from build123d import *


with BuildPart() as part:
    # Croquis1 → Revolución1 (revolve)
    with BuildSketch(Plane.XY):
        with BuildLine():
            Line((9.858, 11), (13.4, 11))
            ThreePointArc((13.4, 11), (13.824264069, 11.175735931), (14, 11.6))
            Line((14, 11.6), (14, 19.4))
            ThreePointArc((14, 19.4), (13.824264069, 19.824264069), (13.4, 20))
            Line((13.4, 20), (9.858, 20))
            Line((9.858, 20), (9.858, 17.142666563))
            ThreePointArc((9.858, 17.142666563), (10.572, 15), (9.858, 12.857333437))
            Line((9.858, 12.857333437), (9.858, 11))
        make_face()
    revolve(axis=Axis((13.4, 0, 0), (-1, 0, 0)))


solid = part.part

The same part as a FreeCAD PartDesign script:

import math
import FreeCAD as App
import Part
import Sketcher

doc = App.newDocument("Part")
body = doc.addObject("PartDesign::Body", "Body")

# Sketch on XY plane
sketch1 = doc.addObject("Sketcher::SketchObject", "Sketch")
body.addObject(sketch1)
sketch1.AttachmentSupport = (doc.XY_Plane, [""])
sketch1.MapMode = "FlatFace"
sketch1.addGeometry([
    Part.LineSegment(App.Vector(9.858, 11, 0), App.Vector(13.4, 11, 0)),  # 0
    Part.ArcOfCircle(Part.Circle(App.Vector(13.4, 11.6, 0), App.Vector(0, 0, 1), 0.6), math.radians(-90), math.radians(0)),  # 1
    Part.LineSegment(App.Vector(14, 11.6, 0), App.Vector(14, 19.4, 0)),  # 2
    Part.ArcOfCircle(Part.Circle(App.Vector(13.4, 19.4, 0), App.Vector(0, 0, 1), 0.6), math.radians(0), math.radians(90)),  # 3
    Part.LineSegment(App.Vector(13.4, 20, 0), App.Vector(9.858, 20, 0)),  # 4
    Part.LineSegment(App.Vector(9.858, 20, 0), App.Vector(9.858, 17.142667, 0)),  # 5
    Part.ArcOfCircle(Part.Circle(App.Vector(7, 15, 0), App.Vector(0, 0, 1), 3.572), math.radians(-36.859203), math.radians(36.859203)),  # 6
    Part.LineSegment(App.Vector(9.858, 12.857333, 0), App.Vector(9.858, 11, 0)),  # 7
], False)
sketch1.addConstraint([
    Sketcher.Constraint("Tangent", 0, 2, 1, 1),
    Sketcher.Constraint("Tangent", 1, 2, 2, 1),
    Sketcher.Constraint("Tangent", 2, 2, 3, 1),
    Sketcher.Constraint("Tangent", 3, 2, 4, 1),
    Sketcher.Constraint("Coincident", 4, 2, 5, 1),
    Sketcher.Constraint("Coincident", 5, 2, 6, 2),
    Sketcher.Constraint("Coincident", 6, 1, 7, 1),
    Sketcher.Constraint("Coincident", 7, 2, 0, 1),
    Sketcher.Constraint("Horizontal", 0),
    Sketcher.Constraint("Vertical", 2),
    Sketcher.Constraint("Horizontal", 4),
    Sketcher.Constraint("Vertical", 5),
    Sketcher.Constraint("Vertical", 7),
    Sketcher.Constraint("Equal", 1, 3),
    Sketcher.Constraint("Vertical", 5, 2, 6, 1),
    Sketcher.Constraint("Radius", 1, 0.6),
    Sketcher.Constraint("DistanceY", 2, 1, 2, 2, 7.8),
    Sketcher.Constraint("DistanceX", -1, 1, 6, 3, 7.0),
    Sketcher.Constraint("DistanceY", -1, 1, 6, 3, 15.0),
    Sketcher.Constraint("DistanceY", -1, 1, 0, 2, 11.0),
    Sketcher.Constraint("DistanceX", -1, 1, 1, 2, 14.0),
    Sketcher.Constraint("Radius", 6, 3.572),
    Sketcher.Constraint("DistanceX", 0, 1, 0, 2, 3.542),
])
revolution = doc.addObject("PartDesign::Revolution", "Revolution")
body.addObject(revolution)
revolution.Profile = sketch1
revolution.ReferenceAxis = (sketch1, ["H_Axis"])
revolution.Angle = 360

doc.recompute()
